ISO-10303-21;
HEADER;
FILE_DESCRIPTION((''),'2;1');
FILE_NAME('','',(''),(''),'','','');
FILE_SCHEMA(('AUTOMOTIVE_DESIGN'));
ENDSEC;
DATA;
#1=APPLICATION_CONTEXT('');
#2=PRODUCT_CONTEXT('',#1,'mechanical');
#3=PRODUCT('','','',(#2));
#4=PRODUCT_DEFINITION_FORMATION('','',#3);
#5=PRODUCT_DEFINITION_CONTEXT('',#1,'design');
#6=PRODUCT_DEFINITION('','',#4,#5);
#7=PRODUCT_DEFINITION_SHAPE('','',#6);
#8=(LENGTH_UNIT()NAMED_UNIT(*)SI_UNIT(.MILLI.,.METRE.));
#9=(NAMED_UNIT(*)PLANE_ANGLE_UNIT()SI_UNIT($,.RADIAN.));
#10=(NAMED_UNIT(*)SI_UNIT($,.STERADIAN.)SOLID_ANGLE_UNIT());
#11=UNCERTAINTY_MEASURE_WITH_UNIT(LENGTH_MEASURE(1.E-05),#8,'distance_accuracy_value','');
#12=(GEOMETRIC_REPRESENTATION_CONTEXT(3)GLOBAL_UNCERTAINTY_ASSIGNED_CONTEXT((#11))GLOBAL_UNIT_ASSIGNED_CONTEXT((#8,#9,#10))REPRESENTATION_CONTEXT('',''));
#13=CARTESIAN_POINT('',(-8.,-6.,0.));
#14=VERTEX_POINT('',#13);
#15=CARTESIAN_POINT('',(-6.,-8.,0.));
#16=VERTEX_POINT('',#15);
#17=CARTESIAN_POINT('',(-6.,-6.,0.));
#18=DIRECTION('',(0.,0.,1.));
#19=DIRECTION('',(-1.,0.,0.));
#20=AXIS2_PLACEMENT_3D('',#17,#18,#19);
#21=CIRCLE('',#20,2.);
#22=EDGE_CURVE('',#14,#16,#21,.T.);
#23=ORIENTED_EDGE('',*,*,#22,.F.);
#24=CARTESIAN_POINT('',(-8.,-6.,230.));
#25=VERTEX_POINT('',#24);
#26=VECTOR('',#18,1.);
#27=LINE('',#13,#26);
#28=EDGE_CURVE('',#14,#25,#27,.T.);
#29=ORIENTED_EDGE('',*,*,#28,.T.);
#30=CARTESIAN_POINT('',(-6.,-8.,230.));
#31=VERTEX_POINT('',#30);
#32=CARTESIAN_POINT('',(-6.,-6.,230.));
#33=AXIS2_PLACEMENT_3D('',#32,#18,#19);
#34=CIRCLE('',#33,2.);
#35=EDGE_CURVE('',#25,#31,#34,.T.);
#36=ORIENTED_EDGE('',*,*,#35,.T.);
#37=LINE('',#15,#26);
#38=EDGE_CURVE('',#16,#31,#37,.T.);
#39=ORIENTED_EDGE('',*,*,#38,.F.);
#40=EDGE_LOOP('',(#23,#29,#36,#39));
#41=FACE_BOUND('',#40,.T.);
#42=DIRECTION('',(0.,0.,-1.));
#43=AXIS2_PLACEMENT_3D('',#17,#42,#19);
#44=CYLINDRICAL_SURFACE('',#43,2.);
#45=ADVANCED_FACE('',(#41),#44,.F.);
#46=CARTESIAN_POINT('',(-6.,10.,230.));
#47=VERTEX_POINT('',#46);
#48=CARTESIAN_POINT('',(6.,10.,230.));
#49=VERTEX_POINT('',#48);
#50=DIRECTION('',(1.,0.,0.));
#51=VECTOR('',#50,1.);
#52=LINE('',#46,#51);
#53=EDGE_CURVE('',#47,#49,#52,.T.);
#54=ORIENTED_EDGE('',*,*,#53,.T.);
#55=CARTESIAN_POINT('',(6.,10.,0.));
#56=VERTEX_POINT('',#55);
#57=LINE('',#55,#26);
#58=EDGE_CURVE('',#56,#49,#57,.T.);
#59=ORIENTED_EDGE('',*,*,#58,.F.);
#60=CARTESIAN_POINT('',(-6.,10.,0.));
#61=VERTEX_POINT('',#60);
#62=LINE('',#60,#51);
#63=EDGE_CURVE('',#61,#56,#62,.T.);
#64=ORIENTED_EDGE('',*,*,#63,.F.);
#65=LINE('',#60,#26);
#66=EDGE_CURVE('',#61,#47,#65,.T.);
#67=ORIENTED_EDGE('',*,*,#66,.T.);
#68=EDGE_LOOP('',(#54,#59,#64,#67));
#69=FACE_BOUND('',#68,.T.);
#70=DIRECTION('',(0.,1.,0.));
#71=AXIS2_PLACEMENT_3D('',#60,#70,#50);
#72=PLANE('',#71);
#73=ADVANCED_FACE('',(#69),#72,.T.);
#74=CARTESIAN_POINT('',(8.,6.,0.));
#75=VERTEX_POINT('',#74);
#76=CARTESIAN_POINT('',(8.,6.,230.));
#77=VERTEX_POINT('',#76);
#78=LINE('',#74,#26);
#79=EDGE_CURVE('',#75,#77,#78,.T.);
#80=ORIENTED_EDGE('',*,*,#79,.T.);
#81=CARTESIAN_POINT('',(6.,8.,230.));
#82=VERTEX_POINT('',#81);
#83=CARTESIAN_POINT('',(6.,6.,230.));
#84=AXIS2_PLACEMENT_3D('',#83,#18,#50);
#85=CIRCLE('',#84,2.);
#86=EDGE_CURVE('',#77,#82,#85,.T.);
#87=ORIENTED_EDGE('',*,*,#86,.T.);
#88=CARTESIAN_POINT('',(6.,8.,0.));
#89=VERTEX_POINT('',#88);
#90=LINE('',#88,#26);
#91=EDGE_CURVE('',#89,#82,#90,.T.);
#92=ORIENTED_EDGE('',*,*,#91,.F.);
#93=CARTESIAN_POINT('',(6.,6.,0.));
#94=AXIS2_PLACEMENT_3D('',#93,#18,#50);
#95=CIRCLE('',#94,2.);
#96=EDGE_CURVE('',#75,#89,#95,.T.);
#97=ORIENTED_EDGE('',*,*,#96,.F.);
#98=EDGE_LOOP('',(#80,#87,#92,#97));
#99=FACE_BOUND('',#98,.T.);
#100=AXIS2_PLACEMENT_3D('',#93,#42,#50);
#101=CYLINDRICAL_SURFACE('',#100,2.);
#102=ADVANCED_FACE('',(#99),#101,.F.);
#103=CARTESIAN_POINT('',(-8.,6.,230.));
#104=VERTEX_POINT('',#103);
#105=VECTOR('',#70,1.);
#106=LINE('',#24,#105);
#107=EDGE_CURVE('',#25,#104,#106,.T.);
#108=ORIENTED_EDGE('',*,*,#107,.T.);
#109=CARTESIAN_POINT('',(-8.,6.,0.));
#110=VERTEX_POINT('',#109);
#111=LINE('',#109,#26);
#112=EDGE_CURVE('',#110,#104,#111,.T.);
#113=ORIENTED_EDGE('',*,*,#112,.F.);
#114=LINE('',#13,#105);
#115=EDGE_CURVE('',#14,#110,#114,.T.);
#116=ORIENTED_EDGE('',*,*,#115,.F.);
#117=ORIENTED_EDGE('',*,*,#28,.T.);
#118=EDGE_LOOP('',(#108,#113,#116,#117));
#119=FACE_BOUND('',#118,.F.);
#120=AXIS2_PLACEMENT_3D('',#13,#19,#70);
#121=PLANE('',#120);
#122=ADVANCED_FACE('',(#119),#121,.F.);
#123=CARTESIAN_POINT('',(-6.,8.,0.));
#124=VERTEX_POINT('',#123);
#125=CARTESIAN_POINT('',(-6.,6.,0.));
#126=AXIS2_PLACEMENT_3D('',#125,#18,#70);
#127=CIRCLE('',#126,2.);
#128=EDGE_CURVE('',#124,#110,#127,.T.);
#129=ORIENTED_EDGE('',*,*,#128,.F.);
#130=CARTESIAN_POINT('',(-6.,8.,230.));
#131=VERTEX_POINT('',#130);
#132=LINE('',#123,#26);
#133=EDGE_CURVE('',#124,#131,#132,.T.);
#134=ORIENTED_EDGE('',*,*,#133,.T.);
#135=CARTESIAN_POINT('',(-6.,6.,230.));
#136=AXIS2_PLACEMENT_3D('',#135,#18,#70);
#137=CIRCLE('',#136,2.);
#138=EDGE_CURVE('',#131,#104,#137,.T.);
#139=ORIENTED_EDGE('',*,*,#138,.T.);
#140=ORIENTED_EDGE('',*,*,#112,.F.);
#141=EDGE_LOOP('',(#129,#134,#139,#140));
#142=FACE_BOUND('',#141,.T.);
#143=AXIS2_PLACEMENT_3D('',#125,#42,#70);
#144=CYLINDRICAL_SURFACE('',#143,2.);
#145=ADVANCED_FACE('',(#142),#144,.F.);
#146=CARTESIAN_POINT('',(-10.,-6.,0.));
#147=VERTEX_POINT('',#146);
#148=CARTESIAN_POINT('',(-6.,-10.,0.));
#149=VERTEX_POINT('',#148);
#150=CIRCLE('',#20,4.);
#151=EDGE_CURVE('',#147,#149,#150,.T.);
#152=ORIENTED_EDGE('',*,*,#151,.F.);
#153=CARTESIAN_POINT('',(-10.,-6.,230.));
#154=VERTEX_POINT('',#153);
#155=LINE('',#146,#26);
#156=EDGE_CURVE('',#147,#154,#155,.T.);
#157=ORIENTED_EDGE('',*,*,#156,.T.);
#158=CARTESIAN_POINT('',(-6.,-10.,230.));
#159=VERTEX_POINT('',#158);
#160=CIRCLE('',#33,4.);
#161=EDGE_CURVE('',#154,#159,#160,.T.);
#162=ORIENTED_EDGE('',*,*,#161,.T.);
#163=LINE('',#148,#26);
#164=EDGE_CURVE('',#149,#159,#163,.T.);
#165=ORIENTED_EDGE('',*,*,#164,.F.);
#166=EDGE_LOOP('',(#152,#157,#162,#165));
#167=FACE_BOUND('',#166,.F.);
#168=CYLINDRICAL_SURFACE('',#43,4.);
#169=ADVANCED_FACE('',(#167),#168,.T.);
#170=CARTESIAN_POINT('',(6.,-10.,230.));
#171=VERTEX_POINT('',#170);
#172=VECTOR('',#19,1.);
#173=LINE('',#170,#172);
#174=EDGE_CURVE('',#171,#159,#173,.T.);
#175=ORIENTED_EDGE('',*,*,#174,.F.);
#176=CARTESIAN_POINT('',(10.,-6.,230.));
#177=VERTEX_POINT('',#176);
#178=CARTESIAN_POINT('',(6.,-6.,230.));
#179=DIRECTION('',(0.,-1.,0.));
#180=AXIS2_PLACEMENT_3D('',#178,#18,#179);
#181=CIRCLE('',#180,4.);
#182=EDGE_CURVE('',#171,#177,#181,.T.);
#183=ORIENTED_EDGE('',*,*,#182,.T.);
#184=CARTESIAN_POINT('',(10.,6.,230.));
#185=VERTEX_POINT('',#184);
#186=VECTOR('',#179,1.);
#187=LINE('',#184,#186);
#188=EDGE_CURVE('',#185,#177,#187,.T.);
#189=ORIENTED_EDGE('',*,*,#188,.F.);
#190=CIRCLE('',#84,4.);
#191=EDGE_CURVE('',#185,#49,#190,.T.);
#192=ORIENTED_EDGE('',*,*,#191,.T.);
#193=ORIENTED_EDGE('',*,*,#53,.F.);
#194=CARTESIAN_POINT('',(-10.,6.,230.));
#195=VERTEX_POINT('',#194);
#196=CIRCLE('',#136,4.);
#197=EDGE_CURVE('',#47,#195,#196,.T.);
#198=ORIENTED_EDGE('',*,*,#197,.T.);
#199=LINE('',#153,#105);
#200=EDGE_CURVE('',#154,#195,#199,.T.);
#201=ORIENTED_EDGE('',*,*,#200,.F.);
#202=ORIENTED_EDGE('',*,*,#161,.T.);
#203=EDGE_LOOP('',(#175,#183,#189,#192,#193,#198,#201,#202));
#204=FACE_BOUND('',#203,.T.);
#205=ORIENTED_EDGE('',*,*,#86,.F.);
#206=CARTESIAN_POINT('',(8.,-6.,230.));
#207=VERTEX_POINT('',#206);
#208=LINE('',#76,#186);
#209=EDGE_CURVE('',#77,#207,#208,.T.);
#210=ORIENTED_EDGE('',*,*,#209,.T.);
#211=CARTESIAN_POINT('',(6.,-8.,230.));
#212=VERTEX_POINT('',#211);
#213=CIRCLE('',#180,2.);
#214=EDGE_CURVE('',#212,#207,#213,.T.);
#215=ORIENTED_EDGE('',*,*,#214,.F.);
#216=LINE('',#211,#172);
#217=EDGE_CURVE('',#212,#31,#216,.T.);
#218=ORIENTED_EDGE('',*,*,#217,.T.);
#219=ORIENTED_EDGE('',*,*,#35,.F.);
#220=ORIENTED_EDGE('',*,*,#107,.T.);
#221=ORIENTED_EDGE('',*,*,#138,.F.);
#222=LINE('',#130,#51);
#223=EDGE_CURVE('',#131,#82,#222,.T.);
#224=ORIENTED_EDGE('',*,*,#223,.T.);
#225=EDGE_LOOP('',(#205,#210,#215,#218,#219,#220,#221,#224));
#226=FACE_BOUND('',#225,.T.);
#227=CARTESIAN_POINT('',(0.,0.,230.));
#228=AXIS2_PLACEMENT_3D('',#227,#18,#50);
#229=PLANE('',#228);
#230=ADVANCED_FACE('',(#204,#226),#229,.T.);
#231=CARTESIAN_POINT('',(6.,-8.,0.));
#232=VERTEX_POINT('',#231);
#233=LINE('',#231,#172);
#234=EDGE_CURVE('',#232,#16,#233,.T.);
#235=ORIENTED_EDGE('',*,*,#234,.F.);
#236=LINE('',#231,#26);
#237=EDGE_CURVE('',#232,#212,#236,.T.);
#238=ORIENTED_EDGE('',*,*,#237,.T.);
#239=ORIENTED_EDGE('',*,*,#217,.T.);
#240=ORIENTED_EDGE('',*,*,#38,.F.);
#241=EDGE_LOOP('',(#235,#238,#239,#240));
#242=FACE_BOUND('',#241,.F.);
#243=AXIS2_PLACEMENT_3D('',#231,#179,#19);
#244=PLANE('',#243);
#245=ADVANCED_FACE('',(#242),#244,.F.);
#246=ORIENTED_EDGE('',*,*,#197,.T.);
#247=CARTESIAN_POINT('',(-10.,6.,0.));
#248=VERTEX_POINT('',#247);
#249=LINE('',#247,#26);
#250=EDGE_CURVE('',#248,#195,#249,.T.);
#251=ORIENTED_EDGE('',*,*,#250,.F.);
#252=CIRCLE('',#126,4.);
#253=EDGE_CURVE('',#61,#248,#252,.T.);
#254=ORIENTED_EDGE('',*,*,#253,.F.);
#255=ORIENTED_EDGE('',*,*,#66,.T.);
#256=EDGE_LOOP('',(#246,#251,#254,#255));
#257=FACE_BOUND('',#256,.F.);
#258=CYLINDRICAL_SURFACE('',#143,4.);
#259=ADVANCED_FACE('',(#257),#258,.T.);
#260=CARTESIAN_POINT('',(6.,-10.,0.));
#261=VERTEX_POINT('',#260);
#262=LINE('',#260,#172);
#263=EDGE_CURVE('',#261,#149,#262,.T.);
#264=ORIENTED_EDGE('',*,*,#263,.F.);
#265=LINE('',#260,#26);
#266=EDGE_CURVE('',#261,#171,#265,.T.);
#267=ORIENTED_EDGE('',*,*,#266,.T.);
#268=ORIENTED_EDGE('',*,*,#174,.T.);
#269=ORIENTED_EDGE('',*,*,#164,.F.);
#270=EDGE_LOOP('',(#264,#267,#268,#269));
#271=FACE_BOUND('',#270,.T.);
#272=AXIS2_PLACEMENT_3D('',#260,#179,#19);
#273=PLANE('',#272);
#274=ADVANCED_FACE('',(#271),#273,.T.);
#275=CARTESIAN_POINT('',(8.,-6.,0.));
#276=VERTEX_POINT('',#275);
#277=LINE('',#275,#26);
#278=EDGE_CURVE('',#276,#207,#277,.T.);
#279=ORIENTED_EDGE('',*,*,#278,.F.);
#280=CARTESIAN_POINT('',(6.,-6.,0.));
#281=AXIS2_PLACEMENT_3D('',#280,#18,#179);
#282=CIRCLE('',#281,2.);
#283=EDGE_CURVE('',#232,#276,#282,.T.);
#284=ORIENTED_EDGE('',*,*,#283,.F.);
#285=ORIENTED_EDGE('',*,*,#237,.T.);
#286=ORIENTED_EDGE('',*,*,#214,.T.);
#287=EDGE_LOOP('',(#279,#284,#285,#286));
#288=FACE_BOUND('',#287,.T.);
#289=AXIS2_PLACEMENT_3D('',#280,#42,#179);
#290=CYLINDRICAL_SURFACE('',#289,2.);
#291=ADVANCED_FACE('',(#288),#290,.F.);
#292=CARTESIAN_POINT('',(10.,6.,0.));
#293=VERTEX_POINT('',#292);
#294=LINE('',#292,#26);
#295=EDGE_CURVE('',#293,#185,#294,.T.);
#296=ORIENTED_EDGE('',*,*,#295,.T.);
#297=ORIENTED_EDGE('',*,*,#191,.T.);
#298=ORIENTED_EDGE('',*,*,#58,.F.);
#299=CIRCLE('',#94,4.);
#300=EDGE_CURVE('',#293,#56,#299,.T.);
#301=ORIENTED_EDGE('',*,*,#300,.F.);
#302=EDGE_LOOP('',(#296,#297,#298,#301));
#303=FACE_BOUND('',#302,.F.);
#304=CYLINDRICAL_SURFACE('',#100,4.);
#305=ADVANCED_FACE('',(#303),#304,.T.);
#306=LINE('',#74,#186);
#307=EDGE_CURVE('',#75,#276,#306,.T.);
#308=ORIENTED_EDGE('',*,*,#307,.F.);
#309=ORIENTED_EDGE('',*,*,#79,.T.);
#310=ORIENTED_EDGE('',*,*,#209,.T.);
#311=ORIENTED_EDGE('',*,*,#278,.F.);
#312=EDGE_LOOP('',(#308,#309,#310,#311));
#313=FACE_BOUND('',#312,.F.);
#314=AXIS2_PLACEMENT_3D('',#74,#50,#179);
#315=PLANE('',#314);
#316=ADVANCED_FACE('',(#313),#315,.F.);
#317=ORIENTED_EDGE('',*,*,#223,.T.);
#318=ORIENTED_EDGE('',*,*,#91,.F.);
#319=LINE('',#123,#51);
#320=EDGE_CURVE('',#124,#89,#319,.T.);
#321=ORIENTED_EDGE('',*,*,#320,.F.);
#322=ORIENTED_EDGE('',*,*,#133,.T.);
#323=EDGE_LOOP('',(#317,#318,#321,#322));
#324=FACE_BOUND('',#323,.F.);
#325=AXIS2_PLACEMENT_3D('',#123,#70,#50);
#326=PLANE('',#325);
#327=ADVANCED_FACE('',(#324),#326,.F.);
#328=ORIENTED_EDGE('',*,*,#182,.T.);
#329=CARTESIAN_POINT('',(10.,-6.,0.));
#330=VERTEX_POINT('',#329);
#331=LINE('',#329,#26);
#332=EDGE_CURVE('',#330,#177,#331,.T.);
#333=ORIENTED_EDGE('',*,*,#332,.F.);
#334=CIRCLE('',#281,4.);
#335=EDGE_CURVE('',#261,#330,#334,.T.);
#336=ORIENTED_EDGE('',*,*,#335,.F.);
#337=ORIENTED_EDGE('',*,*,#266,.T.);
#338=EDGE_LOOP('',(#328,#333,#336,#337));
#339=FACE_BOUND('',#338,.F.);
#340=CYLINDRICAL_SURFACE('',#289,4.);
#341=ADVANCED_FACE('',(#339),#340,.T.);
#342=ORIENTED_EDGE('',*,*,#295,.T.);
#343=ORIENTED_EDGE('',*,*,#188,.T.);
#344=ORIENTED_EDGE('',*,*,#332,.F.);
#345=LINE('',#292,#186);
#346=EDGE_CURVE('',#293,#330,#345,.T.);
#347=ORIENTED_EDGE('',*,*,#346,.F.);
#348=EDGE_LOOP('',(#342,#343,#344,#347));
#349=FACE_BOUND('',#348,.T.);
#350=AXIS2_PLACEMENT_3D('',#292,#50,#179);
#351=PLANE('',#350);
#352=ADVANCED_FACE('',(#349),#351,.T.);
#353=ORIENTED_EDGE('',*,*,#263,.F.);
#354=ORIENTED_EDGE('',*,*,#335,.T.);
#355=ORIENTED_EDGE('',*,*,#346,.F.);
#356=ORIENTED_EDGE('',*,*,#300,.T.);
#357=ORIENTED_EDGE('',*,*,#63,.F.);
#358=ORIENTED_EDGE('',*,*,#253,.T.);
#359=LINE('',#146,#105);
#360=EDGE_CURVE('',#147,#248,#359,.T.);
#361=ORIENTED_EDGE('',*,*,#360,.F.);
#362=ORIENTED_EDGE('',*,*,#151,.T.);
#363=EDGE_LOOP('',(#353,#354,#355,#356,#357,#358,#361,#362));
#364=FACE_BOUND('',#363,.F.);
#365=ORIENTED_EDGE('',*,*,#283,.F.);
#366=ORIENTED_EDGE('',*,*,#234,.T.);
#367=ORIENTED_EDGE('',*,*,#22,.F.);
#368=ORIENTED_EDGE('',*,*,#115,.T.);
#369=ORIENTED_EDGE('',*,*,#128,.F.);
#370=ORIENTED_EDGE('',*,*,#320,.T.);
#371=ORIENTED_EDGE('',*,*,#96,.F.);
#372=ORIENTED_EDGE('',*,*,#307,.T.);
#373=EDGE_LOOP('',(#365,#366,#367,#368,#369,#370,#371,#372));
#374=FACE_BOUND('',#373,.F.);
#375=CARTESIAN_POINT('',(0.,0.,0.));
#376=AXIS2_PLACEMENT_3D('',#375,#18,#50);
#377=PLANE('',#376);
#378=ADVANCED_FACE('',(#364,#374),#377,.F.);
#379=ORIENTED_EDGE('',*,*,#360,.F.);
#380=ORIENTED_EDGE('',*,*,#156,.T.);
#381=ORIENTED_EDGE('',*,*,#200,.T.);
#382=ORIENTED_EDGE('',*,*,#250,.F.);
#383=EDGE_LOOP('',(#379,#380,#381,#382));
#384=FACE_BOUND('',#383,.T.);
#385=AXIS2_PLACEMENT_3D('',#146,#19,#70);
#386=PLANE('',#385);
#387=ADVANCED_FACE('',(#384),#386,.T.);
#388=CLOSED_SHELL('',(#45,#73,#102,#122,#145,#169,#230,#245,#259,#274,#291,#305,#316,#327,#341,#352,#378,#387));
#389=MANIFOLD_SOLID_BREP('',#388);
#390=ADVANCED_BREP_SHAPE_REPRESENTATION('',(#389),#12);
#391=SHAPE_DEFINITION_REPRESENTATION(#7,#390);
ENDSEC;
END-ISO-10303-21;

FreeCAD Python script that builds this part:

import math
import FreeCAD as App
import Part
import Sketcher
Q = App.Units.Quantity

doc = App.newDocument("Part")
body = doc.addObject("PartDesign::Body", "Body")

# Sketch on XY plane
sketch1 = body.newObject("Sketcher::SketchObject", "Sketch")
sketch1.AttachmentSupport = (doc.getObject("XY_Plane"), [""])
sketch1.MapMode = "FlatFace"
sketch1.addGeometry(Part.LineSegment(App.Vector(-10, 6, 0), App.Vector(-10, -6, 0)), False)
sketch1.addGeometry(Part.ArcOfCircle(Part.Circle(App.Vector(-6, -6, 0), App.Vector(0, 0, 1), 4), math.radians(180), math.radians(270)), False)
sketch1.addGeometry(Part.LineSegment(App.Vector(-6, -10, 0), App.Vector(6, -10, 0)), False)
sketch1.addGeometry(Part.ArcOfCircle(Part.Circle(App.Vector(6, -6, 0), App.Vector(0, 0, 1), 4), math.radians(-90), math.radians(0)), False)
sketch1.addGeometry(Part.LineSegment(App.Vector(10, -6, 0), App.Vector(10, 6, 0)), False)
sketch1.addGeometry(Part.ArcOfCircle(Part.Circle(App.Vector(6, 6, 0), App.Vector(0, 0, 1), 4), math.radians(0), math.radians(90)), False)
sketch1.addGeometry(Part.LineSegment(App.Vector(6, 10, 0), App.Vector(-6, 10, 0)), False)
sketch1.addGeometry(Part.ArcOfCircle(Part.Circle(App.Vector(-6, 6, 0), App.Vector(0, 0, 1), 4), math.radians(90), math.radians(180)), False)
sketch1.addGeometry(Part.ArcOfCircle(Part.Circle(App.Vector(-6, 6, 0), App.Vector(0, 0, 1), 2), math.radians(90), math.radians(180)), False)
sketch1.addGeometry(Part.LineSegment(App.Vector(-6, 8, 0), App.Vector(6, 8, 0)), False)
sketch1.addGeometry(Part.ArcOfCircle(Part.Circle(App.Vector(6, 6, 0), App.Vector(0, 0, 1), 2), math.radians(0), math.radians(90)), False)
sketch1.addGeometry(Part.LineSegment(App.Vector(8, 6, 0), App.Vector(8, -6, 0)), False)
sketch1.addGeometry(Part.ArcOfCircle(Part.Circle(App.Vector(6, -6, 0), App.Vector(0, 0, 1), 2), math.radians(-90), math.radians(0)), False)
sketch1.addGeometry(Part.LineSegment(App.Vector(6, -8, 0), App.Vector(-6, -8, 0)), False)
sketch1.addGeometry(Part.ArcOfCircle(Part.Circle(App.Vector(-6, -6, 0), App.Vector(0, 0, 1), 2), math.radians(180), math.radians(270)), False)
sketch1.addGeometry(Part.LineSegment(App.Vector(-8, -6, 0), App.Vector(-8, 6, 0)), False)
sketch1.addConstraint(Sketcher.Constraint("Tangent", 0, 2, 1, 1))
sketch1.addConstraint(Sketcher.Constraint("Tangent", 1, 2, 2, 1))
sketch1.addConstraint(Sketcher.Constraint("Tangent", 2, 2, 3, 1))
sketch1.addConstraint(Sketcher.Constraint("Tangent", 3, 2, 4, 1))
sketch1.addConstraint(Sketcher.Constraint("Tangent", 4, 2, 5, 1))
sketch1.addConstraint(Sketcher.Constraint("Tangent", 5, 2, 6, 1))
sketch1.addConstraint(Sketcher.Constraint("Tangent", 6, 2, 7, 1))
sketch1.addConstraint(Sketcher.Constraint("Tangent", 7, 2, 0, 1))
sketch1.addConstraint(Sketcher.Constraint("Tangent", 8, 1, 9, 1))
sketch1.addConstraint(Sketcher.Constraint("Tangent", 9, 2, 10, 2))
sketch1.addConstraint(Sketcher.Constraint("Tangent", 10, 1, 11, 1))
sketch1.addConstraint(Sketcher.Constraint("Tangent", 11, 2, 12, 2))
sketch1.addConstraint(Sketcher.Constraint("Tangent", 12, 1, 13, 1))
sketch1.addConstraint(Sketcher.Constraint("Tangent", 13, 2, 14, 2))
sketch1.addConstraint(Sketcher.Constraint("Tangent", 14, 1, 15, 1))
sketch1.addConstraint(Sketcher.Constraint("Tangent", 15, 2, 8, 2))
sketch1.addConstraint(Sketcher.Constraint("Vertical", 0))
sketch1.addConstraint(Sketcher.Constraint("Horizontal", 2))
sketch1.addConstraint(Sketcher.Constraint("Vertical", 4))
sketch1.addConstraint(Sketcher.Constraint("Horizontal", 6))
sketch1.addConstraint(Sketcher.Constraint("Horizontal", 9))
sketch1.addConstraint(Sketcher.Constraint("Vertical", 11))
sketch1.addConstraint(Sketcher.Constraint("Horizontal", 13))
sketch1.addConstraint(Sketcher.Constraint("Vertical", 15))
sketch1.addConstraint(Sketcher.Constraint("Coincident", 8, 3, 7, 3))
sketch1.addConstraint(Sketcher.Constraint("Coincident", 10, 3, 5, 3))
sketch1.addConstraint(Sketcher.Constraint("Coincident", 12, 3, 3, 3))
sketch1.addConstraint(Sketcher.Constraint("Equal", 1, 3))
sketch1.addConstraint(Sketcher.Constraint("Equal", 3, 5))
sketch1.addConstraint(Sketcher.Constraint("Equal", 5, 7))
sketch1.addConstraint(Sketcher.Constraint("Equal", 12, 14))
sketch1.addConstraint(Sketcher.Constraint("Symmetric", 1, 3, 5, 3, -1, 1))
sketch1.addConstraint(Sketcher.Constraint("Equal", 13, 0))
sketch1.addConstraint(Sketcher.Constraint("Radius", 1, Q("4 mm")))
sketch1.addConstraint(Sketcher.Constraint("Radius", 8, Q("2 mm")))
sketch1.addConstraint(Sketcher.Constraint("DistanceX", 0, 2, -1, 1, Q("10 mm")))
pad1 = body.newObject("PartDesign::Pad", "Pad")
pad1.Profile = sketch1
pad1.Length = 230

doc.recompute()
